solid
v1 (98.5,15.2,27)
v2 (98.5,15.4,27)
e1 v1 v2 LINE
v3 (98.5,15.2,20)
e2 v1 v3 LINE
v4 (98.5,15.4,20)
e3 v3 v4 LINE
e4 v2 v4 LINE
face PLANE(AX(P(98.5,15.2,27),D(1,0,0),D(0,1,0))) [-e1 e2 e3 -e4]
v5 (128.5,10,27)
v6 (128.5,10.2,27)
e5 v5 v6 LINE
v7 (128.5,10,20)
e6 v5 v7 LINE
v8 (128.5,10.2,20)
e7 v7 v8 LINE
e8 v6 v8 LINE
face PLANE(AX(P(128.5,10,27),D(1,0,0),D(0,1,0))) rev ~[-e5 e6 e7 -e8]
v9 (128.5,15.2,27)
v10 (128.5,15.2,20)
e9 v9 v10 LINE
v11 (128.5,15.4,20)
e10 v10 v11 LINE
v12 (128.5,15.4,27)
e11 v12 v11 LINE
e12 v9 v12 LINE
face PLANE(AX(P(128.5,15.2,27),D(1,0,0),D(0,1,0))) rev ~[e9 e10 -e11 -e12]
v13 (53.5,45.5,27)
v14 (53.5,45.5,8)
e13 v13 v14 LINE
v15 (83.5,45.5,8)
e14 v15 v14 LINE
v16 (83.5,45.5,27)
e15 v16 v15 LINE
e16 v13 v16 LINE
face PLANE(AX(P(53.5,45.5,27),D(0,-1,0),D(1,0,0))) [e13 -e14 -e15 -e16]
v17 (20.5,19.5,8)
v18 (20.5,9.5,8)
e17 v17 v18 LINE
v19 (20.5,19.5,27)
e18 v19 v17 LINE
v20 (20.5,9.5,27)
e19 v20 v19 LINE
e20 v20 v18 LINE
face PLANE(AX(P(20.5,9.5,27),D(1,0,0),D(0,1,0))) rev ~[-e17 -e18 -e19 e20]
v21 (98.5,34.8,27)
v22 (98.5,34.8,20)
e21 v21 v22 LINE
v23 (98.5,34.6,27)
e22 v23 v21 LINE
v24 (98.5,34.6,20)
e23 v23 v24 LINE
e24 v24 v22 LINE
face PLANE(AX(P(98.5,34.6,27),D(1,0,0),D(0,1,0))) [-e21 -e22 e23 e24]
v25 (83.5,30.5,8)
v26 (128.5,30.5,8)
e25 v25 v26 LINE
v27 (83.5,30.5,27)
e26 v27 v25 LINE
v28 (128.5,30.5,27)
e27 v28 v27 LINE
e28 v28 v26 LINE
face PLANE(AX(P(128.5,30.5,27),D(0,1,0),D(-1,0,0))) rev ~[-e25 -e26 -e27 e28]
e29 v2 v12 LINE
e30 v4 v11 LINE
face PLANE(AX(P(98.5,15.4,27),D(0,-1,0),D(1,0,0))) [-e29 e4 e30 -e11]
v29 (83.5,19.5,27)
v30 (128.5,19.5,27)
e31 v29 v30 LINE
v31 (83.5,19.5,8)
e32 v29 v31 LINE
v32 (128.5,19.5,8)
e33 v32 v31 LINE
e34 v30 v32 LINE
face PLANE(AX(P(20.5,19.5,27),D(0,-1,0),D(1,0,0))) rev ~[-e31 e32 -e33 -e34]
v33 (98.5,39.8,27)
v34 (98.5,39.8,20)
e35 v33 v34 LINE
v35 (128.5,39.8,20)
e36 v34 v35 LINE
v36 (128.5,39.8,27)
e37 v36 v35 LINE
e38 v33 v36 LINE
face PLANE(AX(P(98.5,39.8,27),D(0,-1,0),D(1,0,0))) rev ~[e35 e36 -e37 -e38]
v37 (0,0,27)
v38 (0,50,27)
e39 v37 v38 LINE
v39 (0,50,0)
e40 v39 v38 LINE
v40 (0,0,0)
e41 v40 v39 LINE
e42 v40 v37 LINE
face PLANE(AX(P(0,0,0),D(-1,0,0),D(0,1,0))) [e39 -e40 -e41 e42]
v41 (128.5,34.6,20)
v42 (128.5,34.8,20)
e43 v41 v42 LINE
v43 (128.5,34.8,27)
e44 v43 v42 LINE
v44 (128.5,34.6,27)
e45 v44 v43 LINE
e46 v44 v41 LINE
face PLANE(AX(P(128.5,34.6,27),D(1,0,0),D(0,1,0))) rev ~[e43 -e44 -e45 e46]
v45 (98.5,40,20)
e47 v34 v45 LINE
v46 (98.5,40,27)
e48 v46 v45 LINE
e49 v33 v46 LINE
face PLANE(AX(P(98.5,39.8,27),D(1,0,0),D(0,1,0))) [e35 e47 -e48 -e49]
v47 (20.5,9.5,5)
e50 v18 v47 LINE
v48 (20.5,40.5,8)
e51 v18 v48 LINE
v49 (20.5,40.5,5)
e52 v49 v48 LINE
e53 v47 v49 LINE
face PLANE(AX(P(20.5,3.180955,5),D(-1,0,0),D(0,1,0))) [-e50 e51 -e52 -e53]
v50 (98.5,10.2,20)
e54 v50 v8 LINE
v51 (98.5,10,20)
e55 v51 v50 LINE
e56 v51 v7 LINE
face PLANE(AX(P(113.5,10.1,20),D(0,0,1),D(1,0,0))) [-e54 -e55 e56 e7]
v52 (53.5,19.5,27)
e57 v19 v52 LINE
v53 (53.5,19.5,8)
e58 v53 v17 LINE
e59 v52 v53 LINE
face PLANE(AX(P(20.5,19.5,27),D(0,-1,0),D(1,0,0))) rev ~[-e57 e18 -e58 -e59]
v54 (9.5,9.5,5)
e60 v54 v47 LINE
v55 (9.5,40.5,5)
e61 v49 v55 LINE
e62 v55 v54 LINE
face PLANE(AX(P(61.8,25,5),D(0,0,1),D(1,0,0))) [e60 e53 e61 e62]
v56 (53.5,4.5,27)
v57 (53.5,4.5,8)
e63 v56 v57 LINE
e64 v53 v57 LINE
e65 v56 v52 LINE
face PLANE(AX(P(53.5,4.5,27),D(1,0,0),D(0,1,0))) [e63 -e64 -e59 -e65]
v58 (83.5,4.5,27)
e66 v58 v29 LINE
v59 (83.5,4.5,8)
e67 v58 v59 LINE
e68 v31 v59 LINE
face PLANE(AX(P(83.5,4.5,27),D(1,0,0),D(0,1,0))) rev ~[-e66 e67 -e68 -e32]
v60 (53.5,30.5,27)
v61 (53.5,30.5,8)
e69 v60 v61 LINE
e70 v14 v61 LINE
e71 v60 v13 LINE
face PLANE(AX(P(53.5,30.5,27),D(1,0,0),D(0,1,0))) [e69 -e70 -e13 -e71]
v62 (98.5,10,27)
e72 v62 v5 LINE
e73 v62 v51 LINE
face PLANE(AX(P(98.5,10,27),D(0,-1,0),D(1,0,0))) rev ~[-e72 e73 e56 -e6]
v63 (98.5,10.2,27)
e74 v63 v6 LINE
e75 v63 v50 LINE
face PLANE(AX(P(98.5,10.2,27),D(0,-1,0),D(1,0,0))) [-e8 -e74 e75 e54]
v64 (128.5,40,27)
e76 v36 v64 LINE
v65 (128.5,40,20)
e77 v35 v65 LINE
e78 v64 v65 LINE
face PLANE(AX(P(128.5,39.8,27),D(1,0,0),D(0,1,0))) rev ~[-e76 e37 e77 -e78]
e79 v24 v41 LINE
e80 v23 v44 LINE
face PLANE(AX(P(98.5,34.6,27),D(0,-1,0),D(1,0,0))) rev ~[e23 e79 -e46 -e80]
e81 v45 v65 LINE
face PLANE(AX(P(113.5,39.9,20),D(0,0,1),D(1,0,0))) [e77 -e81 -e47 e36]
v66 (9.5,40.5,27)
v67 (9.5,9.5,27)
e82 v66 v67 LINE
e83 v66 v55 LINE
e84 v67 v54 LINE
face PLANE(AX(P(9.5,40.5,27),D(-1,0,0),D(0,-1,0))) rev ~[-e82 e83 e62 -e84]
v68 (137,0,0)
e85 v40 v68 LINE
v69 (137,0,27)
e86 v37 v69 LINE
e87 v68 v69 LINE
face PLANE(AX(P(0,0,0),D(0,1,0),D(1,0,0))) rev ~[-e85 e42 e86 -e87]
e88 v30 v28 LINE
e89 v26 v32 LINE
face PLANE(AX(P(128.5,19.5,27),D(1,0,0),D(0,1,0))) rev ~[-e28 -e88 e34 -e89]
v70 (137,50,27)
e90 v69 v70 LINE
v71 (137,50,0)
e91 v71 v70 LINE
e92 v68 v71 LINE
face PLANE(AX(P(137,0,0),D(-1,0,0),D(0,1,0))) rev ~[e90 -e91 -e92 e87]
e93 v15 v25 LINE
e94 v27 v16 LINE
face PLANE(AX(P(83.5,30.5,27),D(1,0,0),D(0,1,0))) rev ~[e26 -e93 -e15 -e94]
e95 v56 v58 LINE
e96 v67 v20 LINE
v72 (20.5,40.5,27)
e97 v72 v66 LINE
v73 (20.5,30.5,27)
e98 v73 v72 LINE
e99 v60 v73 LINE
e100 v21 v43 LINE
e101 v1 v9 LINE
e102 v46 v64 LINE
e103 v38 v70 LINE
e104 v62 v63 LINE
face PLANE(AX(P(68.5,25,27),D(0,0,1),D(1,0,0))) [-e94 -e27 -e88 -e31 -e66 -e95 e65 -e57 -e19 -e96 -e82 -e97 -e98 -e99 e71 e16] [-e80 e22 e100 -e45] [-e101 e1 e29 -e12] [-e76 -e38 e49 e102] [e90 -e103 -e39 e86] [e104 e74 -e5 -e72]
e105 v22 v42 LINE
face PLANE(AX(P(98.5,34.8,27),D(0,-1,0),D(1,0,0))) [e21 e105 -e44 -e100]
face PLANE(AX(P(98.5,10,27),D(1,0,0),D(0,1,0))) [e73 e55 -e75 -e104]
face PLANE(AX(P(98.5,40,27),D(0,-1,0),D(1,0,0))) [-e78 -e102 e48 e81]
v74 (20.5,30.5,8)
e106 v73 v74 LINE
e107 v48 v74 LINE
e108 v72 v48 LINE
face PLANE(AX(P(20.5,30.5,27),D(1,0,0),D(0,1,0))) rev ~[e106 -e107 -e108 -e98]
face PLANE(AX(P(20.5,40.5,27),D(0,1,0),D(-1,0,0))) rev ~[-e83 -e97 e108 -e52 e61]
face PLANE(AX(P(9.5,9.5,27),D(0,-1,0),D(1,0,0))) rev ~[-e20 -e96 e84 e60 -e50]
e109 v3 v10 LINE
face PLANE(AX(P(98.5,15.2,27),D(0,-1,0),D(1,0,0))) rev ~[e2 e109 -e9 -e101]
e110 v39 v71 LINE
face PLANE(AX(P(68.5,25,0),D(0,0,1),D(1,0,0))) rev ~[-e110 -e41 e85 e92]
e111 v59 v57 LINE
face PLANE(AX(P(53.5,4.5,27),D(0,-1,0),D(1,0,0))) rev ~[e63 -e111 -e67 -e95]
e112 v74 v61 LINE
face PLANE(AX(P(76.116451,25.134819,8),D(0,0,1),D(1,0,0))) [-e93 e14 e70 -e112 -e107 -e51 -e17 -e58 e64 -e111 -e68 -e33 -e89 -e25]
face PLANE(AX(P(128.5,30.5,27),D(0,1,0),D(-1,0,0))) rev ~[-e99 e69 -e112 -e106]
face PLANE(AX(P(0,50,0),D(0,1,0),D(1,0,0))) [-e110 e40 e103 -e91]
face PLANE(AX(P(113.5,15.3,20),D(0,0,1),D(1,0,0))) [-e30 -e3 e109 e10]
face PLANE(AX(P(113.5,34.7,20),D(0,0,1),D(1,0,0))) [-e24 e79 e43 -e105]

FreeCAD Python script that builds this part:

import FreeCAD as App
import Part
import Sketcher

doc = App.newDocument("Part")
params = doc.addObject("Spreadsheet::Sheet", "Params")
for row, (alias, value) in enumerate([
    ("sketch1_width", "137 mm"),
    ("sketch1_height", "50 mm"),
    ("pad1_length", "27 mm"),
    ("sketch2_width", "11 mm"),
    ("sketch2_width2", "108 mm"),
    ("sketch2_height", "31 mm"),
    ("pocket1_length", "22 mm"),
    ("sketch3_width", "30 mm"),
    ("sketch3_height", "15 mm"),
    ("pocket2_length", "22 mm"),
    ("sketch4_width", "30 mm"),
    ("sketch4_height", "0.2 mm"),
    ("pocket3_length", "7 mm"),
    ("pad2_length", "3 mm"),
], start=1):
    params.set(f"A{row}", alias)
    params.set(f"B{row}", "=" + value)
    params.setAlias(f"B{row}", alias)

body = doc.addObject("PartDesign::Body", "Body")

# Sketch on XY plane
sketch1 = doc.addObject("Sketcher::SketchObject", "Sketch")
body.addObject(sketch1)
sketch1.AttachmentSupport = (doc.XY_Plane, [""])
sketch1.MapMode = "FlatFace"
sketch1.addGeometry([
    Part.LineSegment(App.Vector(0, 50, 0), App.Vector(0, 0, 0)),
    Part.LineSegment(App.Vector(0, 0, 0), App.Vector(137, 0, 0)),
    Part.LineSegment(App.Vector(137, 0, 0), App.Vector(137, 50, 0)),
    Part.LineSegment(App.Vector(137, 50, 0), App.Vector(0, 50, 0)),
], False)
sketch1.addConstraint([
    Sketcher.Constraint("Coincident", 0, 2, 1, 1),
    Sketcher.Constraint("Coincident", 1, 2, 2, 1),
    Sketcher.Constraint("Coincident", 2, 2, 3, 1),
    Sketcher.Constraint("Coincident", 3, 2, 0, 1),
    Sketcher.Constraint("Vertical", 0),
    Sketcher.Constraint("Horizontal", 1),
    Sketcher.Constraint("Vertical", 2),
    Sketcher.Constraint("Horizontal", 3),
    Sketcher.Constraint("Coincident", 0, 2, -1, 1),
    Sketcher.Constraint("DistanceX", 1, 1, 1, 2, 137.0),
    Sketcher.Constraint("DistanceY", 0, 2, 0, 1, 50.0),
])
sketch1.setExpression("Constraints[9]", "Params.sketch1_width")
sketch1.setExpression("Constraints[10]", "Params.sketch1_height")
pad1 = doc.addObject("PartDesign::Pad", "Pad")
body.addObject(pad1)
pad1.Profile = sketch1
pad1.setExpression("Length", "Params.pad1_length")

# Sketch on XY plane
sketch2 = doc.addObject("Sketcher::SketchObject", "Sketch001")
body.addObject(sketch2)
sketch2.AttachmentSupport = (doc.XY_Plane, [""])
sketch2.MapMode = "FlatFace"
sketch2.AttachmentOffset = App.Placement(App.Vector(0, 0, 27), App.Rotation())
sketch2.addGeometry([
    Part.LineSegment(App.Vector(20, 40, 0), App.Vector(10, 40, 0)),  # 0
    Part.LineSegment(App.Vector(10, 40, 0), App.Vector(10, 10, 0)),  # 1
    Part.LineSegment(App.Vector(10, 10, 0), App.Vector(20, 10, 0)),  # 2
    Part.LineSegment(App.Vector(20, 10, 0), App.Vector(20, 20, 0)),  # 3
    Part.LineSegment(App.Vector(20, 20, 0), App.Vector(128, 20, 0)),  # 4
    Part.LineSegment(App.Vector(128, 20, 0), App.Vector(128, 30, 0)),  # 5
    Part.LineSegment(App.Vector(128, 30, 0), App.Vector(20, 30, 0)),  # 6
    Part.LineSegment(App.Vector(20, 30, 0), App.Vector(20, 40, 0)),  # 7
], False)
sketch2.addConstraint([
    Sketcher.Constraint("Coincident", 0, 2, 1, 1),
    Sketcher.Constraint("Coincident", 1, 2, 2, 1),
    Sketcher.Constraint("Coincident", 2, 2, 3, 1),
    Sketcher.Constraint("Coincident", 3, 2, 4, 1),
    Sketcher.Constraint("Coincident", 4, 2, 5, 1),
    Sketcher.Constraint("Coincident", 5, 2, 6, 1),
    Sketcher.Constraint("Coincident", 6, 2, 7, 1),
    Sketcher.Constraint("Coincident", 7, 2, 0, 1),
    Sketcher.Constraint("Horizontal", 0),
    Sketcher.Constraint("Vertical", 1),
    Sketcher.Constraint("Horizontal", 2),
    Sketcher.Constraint("Vertical", 3),
    Sketcher.Constraint("Horizontal", 4),
    Sketcher.Constraint("Vertical", 5),
    Sketcher.Constraint("Horizontal", 6),
    Sketcher.Constraint("Vertical", 7),
    Sketcher.Constraint("Vertical", 3, 2, 6, 2),
    Sketcher.Constraint("Equal", 2, 5),
    Sketcher.Constraint("Equal", 3, 7),
    Sketcher.Constraint("DistanceX", 0, 2, 0, 1, 11.0),
    Sketcher.Constraint("DistanceX", 4, 1, 4, 2, 108.0),
    Sketcher.Constraint("DistanceY", 1, 2, 1, 1, 31.0),
    Sketcher.Constraint("DistanceX", -1, 1, 0, 2, 9.5),
    Sketcher.Constraint("DistanceY", -1, 1, 0, 2, 40.5),
])
sketch2.setExpression("Constraints[19]", "Params.sketch2_width")
sketch2.setExpression("Constraints[20]", "Params.sketch2_width2")
sketch2.setExpression("Constraints[21]", "Params.sketch2_height")
pocket1 = doc.addObject("PartDesign::Pocket", "Pocket")
body.addObject(pocket1)
pocket1.Profile = sketch2
pocket1.setExpression("Length", "Params.pocket1_length")

# Sketch on XY plane
sketch3 = doc.addObject("Sketcher::SketchObject", "Sketch002")
body.addObject(sketch3)
sketch3.AttachmentSupport = (doc.XY_Plane, [""])
sketch3.MapMode = "FlatFace"
sketch3.AttachmentOffset = App.Placement(App.Vector(0, 0, 27), App.Rotation())
sketch3.addGeometry([
    Part.LineSegment(App.Vector(54, 46, 0), App.Vector(54, 30, 0)),  # 0
    Part.LineSegment(App.Vector(54, 30, 0), App.Vector(84, 30, 0)),  # 1
    Part.LineSegment(App.Vector(84, 30, 0), App.Vector(84, 46, 0)),  # 2
    Part.LineSegment(App.Vector(84, 46, 0), App.Vector(54, 46, 0)),  # 3
    Part.LineSegment(App.Vector(54, 20, 0), App.Vector(54, 4, 0)),  # 4
    Part.LineSegment(App.Vector(54, 4, 0), App.Vector(84, 4, 0)),  # 5
    Part.LineSegment(App.Vector(84, 4, 0), App.Vector(84, 20, 0)),  # 6
    Part.LineSegment(App.Vector(84, 20, 0), App.Vector(54, 20, 0)),  # 7
], False)
sketch3.addConstraint([
    Sketcher.Constraint("Coincident", 0, 2, 1, 1),
    Sketcher.Constraint("Coincident", 1, 2, 2, 1),
    Sketcher.Constraint("Coincident", 2, 2, 3, 1),
    Sketcher.Constraint("Coincident", 3, 2, 0, 1),
    Sketcher.Constraint("Coincident", 4, 2, 5, 1),
    Sketcher.Constraint("Coincident", 5, 2, 6, 1),
    Sketcher.Constraint("Coincident", 6, 2, 7, 1),
    Sketcher.Constraint("Coincident", 7, 2, 4, 1),
    Sketcher.Constraint("Vertical", 0),
    Sketcher.Constraint("Horizontal", 1),
    Sketcher.Constraint("Vertical", 2),
    Sketcher.Constraint("Horizontal", 3),
    Sketcher.Constraint("Vertical", 4),
    Sketcher.Constraint("Horizontal", 5),
    Sketcher.Constraint("Vertical", 6),
    Sketcher.Constraint("Horizontal", 7),
    Sketcher.Constraint("Vertical", 3, 2, 4, 2),
    Sketcher.Constraint("Vertical", 2, 2, 5, 2),
    Sketcher.Constraint("Equal", 2, 4),
    Sketcher.Constraint("DistanceX", 1, 1, 1, 2, 30.0),
    Sketcher.Constraint("DistanceY", 0, 2, 0, 1, 15.0),
    Sketcher.Constraint("DistanceY", 4, 2, 0, 2, 26.0),
    Sketcher.Constraint("DistanceX", -1, 1, 0, 2, 53.5),
    Sketcher.Constraint("DistanceY", -1, 1, 0, 2, 30.5),
])
sketch3.setExpression("Constraints[19]", "Params.sketch3_width")
sketch3.setExpression("Constraints[20]", "Params.sketch3_height")
pocket2 = doc.addObject("PartDesign::Pocket", "Pocket001")
body.addObject(pocket2)
pocket2.Profile = sketch3
pocket2.setExpression("Length", "Params.pocket2_length")

# Sketch on XY plane
sketch4 = doc.addObject("Sketcher::SketchObject", "Sketch003")
body.addObject(sketch4)
sketch4.AttachmentSupport = (doc.XY_Plane, [""])
sketch4.MapMode = "FlatFace"
sketch4.AttachmentOffset = App.Placement(App.Vector(0, 0, 27), App.Rotation())
sketch4.addGeometry([
    Part.LineSegment(App.Vector(98.5, 40, 0), App.Vector(98.5, 39.8, 0)),  # 0
    Part.LineSegment(App.Vector(98.5, 39.8, 0), App.Vector(128.5, 39.8, 0)),  # 1
    Part.LineSegment(App.Vector(128.5, 39.8, 0), App.Vector(128.5, 40, 0)),  # 2
    Part.LineSegment(App.Vector(128.5, 40, 0), App.Vector(98.5, 40, 0)),  # 3
    Part.LineSegment(App.Vector(98.5, 34.8, 0), App.Vector(98.5, 34.6, 0)),  # 4
    Part.LineSegment(App.Vector(98.5, 34.6, 0), App.Vector(128.5, 34.6, 0)),  # 5
    Part.LineSegment(App.Vector(128.5, 34.6, 0), App.Vector(128.5, 34.8, 0)),  # 6
    Part.LineSegment(App.Vector(128.5, 34.8, 0), App.Vector(98.5, 34.8, 0)),  # 7
    Part.LineSegment(App.Vector(98.5, 15.4, 0), App.Vector(98.5, 15.2, 0)),  # 8
    Part.LineSegment(App.Vector(98.5, 15.2, 0), App.Vector(128.5, 15.2, 0)),  # 9
    Part.LineSegment(App.Vector(128.5, 15.2, 0), App.Vector(128.5, 15.4, 0)),  # 10
    Part.LineSegment(App.Vector(128.5, 15.4, 0), App.Vector(98.5, 15.4, 0)),  # 11
    Part.LineSegment(App.Vector(98.5, 10.2, 0), App.Vector(98.5, 10, 0)),  # 12
    Part.LineSegment(App.Vector(98.5, 10, 0), App.Vector(128.5, 10, 0)),  # 13
    Part.LineSegment(App.Vector(128.5, 10, 0), App.Vector(128.5, 10.2, 0)),  # 14
    Part.LineSegment(App.Vector(128.5, 10.2, 0), App.Vector(98.5, 10.2, 0)),  # 15
], False)
sketch4.addConstraint([
    Sketcher.Constraint("Coincident", 0, 2, 1, 1),
    Sketcher.Constraint("Coincident", 1, 2, 2, 1),
    Sketcher.Constraint("Coincident", 2, 2, 3, 1),
    Sketcher.Constraint("Coincident", 3, 2, 0, 1),
    Sketcher.Constraint("Coincident", 4, 2, 5, 1),
    Sketcher.Constraint("Coincident", 5, 2, 6, 1),
    Sketcher.Constraint("Coincident", 6, 2, 7, 1),
    Sketcher.Constraint("Coincident", 7, 2, 4, 1),
    Sketcher.Constraint("Coincident", 8, 2, 9, 1),
    Sketcher.Constraint("Coincident", 9, 2, 10, 1),
    Sketcher.Constraint("Coincident", 10, 2, 11, 1),
    Sketcher.Constraint("Coincident", 11, 2, 8, 1),
    Sketcher.Constraint("Coincident", 12, 2, 13, 1),
    Sketcher.Constraint("Coincident", 13, 2, 14, 1),
    Sketcher.Constraint("Coincident", 14, 2, 15, 1),
    Sketcher.Constraint("Coincident", 15, 2, 12, 1),
    Sketcher.Constraint("Vertical", 0),
    Sketcher.Constraint("Horizontal", 1),
    Sketcher.Constraint("Vertical", 2),
    Sketcher.Constraint("Horizontal", 3),
    Sketcher.Constraint("Vertical", 4),
    Sketcher.Constraint("Horizontal", 5),
    Sketcher.Constraint("Vertical", 6),
    Sketcher.Constraint("Horizontal", 7),
    Sketcher.Constraint("Vertical", 8),
    Sketcher.Constraint("Horizontal", 9),
    Sketcher.Constraint("Vertical", 10),
    Sketcher.Constraint("Horizontal", 11),
    Sketcher.Constraint("Vertical", 12),
    Sketcher.Constraint("Horizontal", 13),
    Sketcher.Constraint("Vertical", 14),
    Sketcher.Constraint("Horizontal", 15),
    Sketcher.Constraint("Vertical", 3, 2, 4, 2),
    Sketcher.Constraint("Vertical", 2, 2, 5, 2),
    Sketcher.Constraint("Vertical", 7, 2, 8, 2),
    Sketcher.Constraint("Vertical", 6, 2, 9, 2),
    Sketcher.Constraint("Vertical", 11, 2, 12, 2),
    Sketcher.Constraint("Vertical", 10, 2, 13, 2),
    Sketcher.Constraint("Equal", 2, 4),
    Sketcher.Constraint("Equal", 6, 8),
    Sketcher.Constraint("Equal", 10, 12),
    Sketcher.Constraint("DistanceX", 1, 1, 1, 2, 30.0),
    Sketcher.Constraint("DistanceY", 0, 2, 0, 1, 0.2),
    Sketcher.Constraint("DistanceY", -1, 1, 2, 2, 40.0),
    Sketcher.Constraint("DistanceY", -1, 1, 12, 2, 10.0),
    Sketcher.Constraint("DistanceY", 6, 2, 1, 2, 5.0),
    Sketcher.Constraint("DistanceY", 14, 2, 9, 2, 5.0),
    Sketcher.Constraint("DistanceX", -1, 1, 0, 2, 98.5),
])
sketch4.setExpression("Constraints[41]", "Params.sketch4_width")
sketch4.setExpression("Constraints[42]", "Params.sketch4_height")
pocket3 = doc.addObject("PartDesign::Pocket", "Pocket002")
body.addObject(pocket3)
pocket3.Profile = sketch4
pocket3.setExpression("Length", "Params.pocket3_length")

# Sketch on XY plane
sketch5 = doc.addObject("Sketcher::SketchObject", "Sketch004")
body.addObject(sketch5)
sketch5.AttachmentSupport = (doc.XY_Plane, [""])
sketch5.MapMode = "FlatFace"
sketch5.AttachmentOffset = App.Placement(App.Vector(0, 0, 5), App.Rotation())
sketch5.addGeometry([
    Part.LineSegment(App.Vector(20, 47, 0), App.Vector(20, 3, 0)),
    Part.LineSegment(App.Vector(20, 3, 0), App.Vector(132, 3, 0)),
    Part.LineSegment(App.Vector(132, 3, 0), App.Vector(132, 47, 0)),
    Part.LineSegment(App.Vector(132, 47, 0), App.Vector(20, 47, 0)),
], False)
sketch5.addConstraint([
    Sketcher.Constraint("Coincident", 0, 2, 1, 1),
    Sketcher.Constraint("Coincident", 1, 2, 2, 1),
    Sketcher.Constraint("Coincident", 2, 2, 3, 1),
    Sketcher.Constraint("Coincident", 3, 2, 0, 1),
    Sketcher.Constraint("Vertical", 0),
    Sketcher.Constraint("Horizontal", 1),
    Sketcher.Constraint("Vertical", 2),
    Sketcher.Constraint("Horizontal", 3),
    Sketcher.Constraint("DistanceX", -1, 1, 0, 2, 20.5),
    Sketcher.Constraint("DistanceY", 0, 2, 0, 1, 43.907728),
    Sketcher.Constraint("DistanceX", 1, 1, 1, 2, 111.232903),
    Sketcher.Constraint("DistanceY", -1, 1, 0, 2, 3.180955),
])
pad2 = doc.addObject("PartDesign::Pad", "Pad001")
body.addObject(pad2)
pad2.Profile = sketch5
pad2.setExpression("Length", "Params.pad2_length")

doc.recompute()
